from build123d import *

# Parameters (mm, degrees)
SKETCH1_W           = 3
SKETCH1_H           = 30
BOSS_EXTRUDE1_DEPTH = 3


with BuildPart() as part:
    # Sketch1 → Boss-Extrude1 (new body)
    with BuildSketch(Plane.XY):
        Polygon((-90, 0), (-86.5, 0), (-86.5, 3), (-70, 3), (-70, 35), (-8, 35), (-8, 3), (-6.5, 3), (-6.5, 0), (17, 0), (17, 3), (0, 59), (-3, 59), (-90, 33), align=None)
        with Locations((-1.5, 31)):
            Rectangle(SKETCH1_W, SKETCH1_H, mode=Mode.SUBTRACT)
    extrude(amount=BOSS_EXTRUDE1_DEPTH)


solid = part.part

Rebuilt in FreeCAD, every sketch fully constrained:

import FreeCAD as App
import Part
import Sketcher
Q = App.Units.Quantity


def add_polygon(sketch, points):
    """Adds a closed chain of lines whose ends are joined by coincident constraints."""
    first, n = sketch.GeometryCount, len(points)
    for a, b in zip(points, points[1:] + points[:1]):
        sketch.addGeometry(Part.LineSegment(App.Vector(*a, 0), App.Vector(*b, 0)), False)
    for i in range(n):
        sketch.addConstraint(Sketcher.Constraint("Coincident", first + i, 2, first + (i + 1) % n, 1))

doc = App.newDocument("Part")
body = doc.addObject("PartDesign::Body", "Body")

# Sketch on XY plane
sketch1 = body.newObject("Sketcher::SketchObject", "Sketch")
sketch1.AttachmentSupport = (doc.getObject("XY_Plane"), [""])
sketch1.MapMode = "FlatFace"
add_polygon(sketch1, [(-90, 0), (-86.5, 0), (-86.5, 3), (-70, 3), (-70, 35), (-8, 35), (-8, 3), (-6.5, 3), (-6.5, 0), (17, 0), (17, 3), (0, 59), (-3, 59), (-90, 33)])  # lines 0-13
add_polygon(sketch1, [(0, 16), (-3, 16), (-3, 46), (0, 46)])  # lines 14-17
sketch1.addConstraint([
    Sketcher.Constraint("Horizontal", 0),
    Sketcher.Constraint("Vertical", 1),
    Sketcher.Constraint("Horizontal", 2),
    Sketcher.Constraint("Vertical", 3),
    Sketcher.Constraint("Horizontal", 4),
    Sketcher.Constraint("Vertical", 5),
    Sketcher.Constraint("Horizontal", 6),
    Sketcher.Constraint("Vertical", 7),
    Sketcher.Constraint("Horizontal", 8),
    Sketcher.Constraint("Vertical", 9),
    Sketcher.Constraint("Horizontal", 11),
    Sketcher.Constraint("Vertical", 13),
    Sketcher.Constraint("Horizontal", 14),
    Sketcher.Constraint("Vertical", 15),
    Sketcher.Constraint("Horizontal", 16),
    Sketcher.Constraint("Vertical", 17),
    Sketcher.Constraint("PointOnObject", 0, 2, -1),
    Sketcher.Constraint("PointOnObject", 7, 2, -1),
    Sketcher.Constraint("PointOnObject", 10, 2, -2),
    Sketcher.Constraint("PointOnObject", 16, 2, -2),
    Sketcher.Constraint("Horizontal", 2, 2, 5, 2),
    Sketcher.Constraint("Horizontal", 6, 2, 9, 2),
    Sketcher.Constraint("Vertical", 11, 2, 14, 2),
    Sketcher.Constraint("Equal", 16, 1),
    Sketcher.Constraint("DistanceX", 4, 1, 4, 2, Q("62 mm")),
    Sketcher.Constraint("DistanceX", 11, 2, 11, 1, Q("3 mm")),
    Sketcher.Constraint("DistanceY", 3, 1, 3, 2, Q("32 mm")),
    Sketcher.Constraint("DistanceY", 13, 2, 13, 1, Q("33 mm")),
    Sketcher.Constraint("DistanceY", 15, 1, 15, 2, Q("30 mm")),
    Sketcher.Constraint("DistanceX", 0, 1, 0, 2, Q("3.5 mm")),
    Sketcher.Constraint("DistanceX", 2, 1, 2, 2, Q("16.5 mm")),
    Sketcher.Constraint("DistanceX", 6, 1, 6, 2, Q("1.5 mm")),
    Sketcher.Constraint("DistanceX", 8, 1, 8, 2, Q("23.5 mm")),
    Sketcher.Constraint("DistanceX", 2, 2, -1, 1, Q("70 mm")),
    Sketcher.Constraint("DistanceY", -1, 1, 10, 2, Q("59 mm")),
    Sketcher.Constraint("DistanceY", -1, 1, 14, 2, Q("16 mm")),
])
pad1 = body.newObject("PartDesign::Pad", "Pad")
pad1.Profile = sketch1
pad1.Length = 3

doc.recompute()
